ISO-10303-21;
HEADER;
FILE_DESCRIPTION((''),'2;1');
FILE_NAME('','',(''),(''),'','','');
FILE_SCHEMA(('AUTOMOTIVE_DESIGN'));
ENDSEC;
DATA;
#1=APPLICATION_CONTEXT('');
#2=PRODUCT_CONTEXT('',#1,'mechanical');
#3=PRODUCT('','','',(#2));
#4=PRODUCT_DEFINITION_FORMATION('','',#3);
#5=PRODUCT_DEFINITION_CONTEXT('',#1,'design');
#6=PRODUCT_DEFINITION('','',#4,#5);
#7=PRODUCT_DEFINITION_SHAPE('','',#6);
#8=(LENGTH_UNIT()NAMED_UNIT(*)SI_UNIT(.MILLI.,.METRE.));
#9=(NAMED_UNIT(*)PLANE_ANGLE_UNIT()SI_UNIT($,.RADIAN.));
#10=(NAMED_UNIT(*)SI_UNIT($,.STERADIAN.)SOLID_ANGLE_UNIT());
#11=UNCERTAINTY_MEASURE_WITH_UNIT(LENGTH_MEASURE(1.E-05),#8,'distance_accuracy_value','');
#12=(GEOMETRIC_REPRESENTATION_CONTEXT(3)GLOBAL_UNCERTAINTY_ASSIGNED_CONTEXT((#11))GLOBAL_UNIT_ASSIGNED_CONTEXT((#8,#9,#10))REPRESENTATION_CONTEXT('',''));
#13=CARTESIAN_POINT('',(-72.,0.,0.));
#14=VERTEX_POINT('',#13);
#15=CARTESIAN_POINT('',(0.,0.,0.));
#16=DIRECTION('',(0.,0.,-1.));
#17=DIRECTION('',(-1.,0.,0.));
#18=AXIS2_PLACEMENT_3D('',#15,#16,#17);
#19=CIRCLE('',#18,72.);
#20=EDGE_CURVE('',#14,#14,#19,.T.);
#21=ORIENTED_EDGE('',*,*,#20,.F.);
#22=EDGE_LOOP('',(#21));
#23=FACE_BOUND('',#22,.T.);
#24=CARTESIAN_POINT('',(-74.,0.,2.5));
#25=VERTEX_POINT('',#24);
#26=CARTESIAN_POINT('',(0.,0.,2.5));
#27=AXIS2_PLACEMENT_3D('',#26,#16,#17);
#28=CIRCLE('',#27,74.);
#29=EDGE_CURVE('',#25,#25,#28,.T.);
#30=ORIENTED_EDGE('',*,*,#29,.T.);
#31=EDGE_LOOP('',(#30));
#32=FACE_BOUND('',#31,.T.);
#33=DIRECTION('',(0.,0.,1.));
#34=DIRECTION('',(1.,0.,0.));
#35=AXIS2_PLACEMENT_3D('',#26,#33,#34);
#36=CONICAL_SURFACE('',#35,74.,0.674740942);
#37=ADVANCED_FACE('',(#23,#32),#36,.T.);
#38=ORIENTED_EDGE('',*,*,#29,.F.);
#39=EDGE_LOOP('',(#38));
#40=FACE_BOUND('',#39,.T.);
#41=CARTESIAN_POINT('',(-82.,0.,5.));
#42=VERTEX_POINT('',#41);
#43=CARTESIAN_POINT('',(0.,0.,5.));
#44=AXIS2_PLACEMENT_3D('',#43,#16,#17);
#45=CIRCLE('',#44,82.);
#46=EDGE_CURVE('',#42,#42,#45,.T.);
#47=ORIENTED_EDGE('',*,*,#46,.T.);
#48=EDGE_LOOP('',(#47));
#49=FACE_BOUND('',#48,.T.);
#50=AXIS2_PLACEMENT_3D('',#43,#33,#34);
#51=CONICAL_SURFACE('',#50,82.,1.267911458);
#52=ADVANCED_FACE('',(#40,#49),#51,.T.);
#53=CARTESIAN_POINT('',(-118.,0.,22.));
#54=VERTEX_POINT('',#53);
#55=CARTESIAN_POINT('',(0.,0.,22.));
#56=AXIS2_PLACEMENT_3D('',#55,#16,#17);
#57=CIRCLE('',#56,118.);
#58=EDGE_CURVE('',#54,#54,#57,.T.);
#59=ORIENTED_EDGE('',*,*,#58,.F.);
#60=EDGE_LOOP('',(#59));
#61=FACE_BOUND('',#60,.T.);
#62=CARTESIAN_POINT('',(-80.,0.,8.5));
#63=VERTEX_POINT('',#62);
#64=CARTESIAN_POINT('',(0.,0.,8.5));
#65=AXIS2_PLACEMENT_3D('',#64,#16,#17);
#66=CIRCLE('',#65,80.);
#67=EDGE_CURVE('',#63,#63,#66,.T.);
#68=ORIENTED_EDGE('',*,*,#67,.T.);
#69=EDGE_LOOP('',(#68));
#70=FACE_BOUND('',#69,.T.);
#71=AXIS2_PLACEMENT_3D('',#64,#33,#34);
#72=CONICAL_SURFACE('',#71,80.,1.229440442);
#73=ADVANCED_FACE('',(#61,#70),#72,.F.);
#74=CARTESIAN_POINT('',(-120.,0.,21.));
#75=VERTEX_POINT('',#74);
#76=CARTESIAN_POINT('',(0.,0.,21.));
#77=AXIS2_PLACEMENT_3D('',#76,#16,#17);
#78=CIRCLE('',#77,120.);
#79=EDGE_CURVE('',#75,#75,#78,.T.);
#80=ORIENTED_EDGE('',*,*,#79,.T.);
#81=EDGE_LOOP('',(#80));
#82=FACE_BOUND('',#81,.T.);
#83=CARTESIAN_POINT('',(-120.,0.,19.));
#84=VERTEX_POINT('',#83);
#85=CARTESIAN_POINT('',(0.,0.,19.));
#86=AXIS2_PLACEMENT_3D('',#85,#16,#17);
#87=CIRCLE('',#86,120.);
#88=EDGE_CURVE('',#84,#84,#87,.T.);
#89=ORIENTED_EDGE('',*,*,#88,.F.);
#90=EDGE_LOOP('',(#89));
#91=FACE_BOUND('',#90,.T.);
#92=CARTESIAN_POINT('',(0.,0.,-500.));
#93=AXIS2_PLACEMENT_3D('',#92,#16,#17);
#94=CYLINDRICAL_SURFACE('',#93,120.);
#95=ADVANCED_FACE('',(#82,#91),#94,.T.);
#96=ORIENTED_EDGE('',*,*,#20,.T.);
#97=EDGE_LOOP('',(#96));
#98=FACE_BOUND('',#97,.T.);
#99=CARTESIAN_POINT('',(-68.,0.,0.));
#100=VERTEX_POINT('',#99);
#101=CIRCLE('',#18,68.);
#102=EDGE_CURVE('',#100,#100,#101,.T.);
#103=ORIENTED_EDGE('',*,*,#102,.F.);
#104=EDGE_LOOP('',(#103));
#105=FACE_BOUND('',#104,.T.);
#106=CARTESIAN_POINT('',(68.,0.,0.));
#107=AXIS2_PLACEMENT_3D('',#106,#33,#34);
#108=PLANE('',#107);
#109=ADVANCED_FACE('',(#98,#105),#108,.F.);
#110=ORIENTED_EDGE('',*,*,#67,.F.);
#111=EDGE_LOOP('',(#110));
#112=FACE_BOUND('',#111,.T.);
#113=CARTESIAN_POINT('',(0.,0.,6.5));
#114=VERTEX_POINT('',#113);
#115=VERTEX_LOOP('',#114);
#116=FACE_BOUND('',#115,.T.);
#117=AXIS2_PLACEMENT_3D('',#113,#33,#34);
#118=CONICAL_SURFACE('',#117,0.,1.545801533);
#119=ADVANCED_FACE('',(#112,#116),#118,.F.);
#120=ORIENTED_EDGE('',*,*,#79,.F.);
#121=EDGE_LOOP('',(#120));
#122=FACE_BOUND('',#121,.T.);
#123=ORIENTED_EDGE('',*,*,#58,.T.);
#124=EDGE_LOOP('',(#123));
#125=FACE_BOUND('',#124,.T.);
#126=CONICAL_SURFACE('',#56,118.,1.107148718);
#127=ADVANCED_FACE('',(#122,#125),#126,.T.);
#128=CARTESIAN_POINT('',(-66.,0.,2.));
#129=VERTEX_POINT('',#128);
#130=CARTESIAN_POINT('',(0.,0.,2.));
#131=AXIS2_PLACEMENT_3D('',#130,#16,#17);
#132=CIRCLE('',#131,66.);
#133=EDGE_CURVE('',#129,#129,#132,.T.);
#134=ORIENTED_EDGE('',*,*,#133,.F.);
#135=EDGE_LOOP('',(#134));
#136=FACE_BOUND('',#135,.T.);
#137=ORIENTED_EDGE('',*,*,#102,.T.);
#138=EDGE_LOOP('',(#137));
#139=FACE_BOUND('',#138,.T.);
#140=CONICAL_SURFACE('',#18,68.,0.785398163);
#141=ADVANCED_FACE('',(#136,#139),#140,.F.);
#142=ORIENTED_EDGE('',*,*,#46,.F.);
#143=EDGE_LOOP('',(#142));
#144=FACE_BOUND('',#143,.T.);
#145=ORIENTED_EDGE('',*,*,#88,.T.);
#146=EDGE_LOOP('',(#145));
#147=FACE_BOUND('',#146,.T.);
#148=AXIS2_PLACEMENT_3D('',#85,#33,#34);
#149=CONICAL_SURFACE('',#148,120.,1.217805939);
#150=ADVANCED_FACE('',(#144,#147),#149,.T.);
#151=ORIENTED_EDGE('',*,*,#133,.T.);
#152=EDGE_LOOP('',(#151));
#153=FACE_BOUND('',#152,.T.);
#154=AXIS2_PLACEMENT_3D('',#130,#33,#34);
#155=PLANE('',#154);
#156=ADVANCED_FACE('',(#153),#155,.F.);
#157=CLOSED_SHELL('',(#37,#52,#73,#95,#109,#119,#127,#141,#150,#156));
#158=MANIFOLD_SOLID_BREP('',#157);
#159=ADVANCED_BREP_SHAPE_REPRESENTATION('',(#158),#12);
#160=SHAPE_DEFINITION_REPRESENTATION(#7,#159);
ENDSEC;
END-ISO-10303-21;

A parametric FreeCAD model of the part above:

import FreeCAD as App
import Part
import Sketcher
from FreeCAD import Vector
Q = App.Units.Quantity


def add_polygon(sketch, points):
    """Adds a closed chain of lines whose ends are joined by coincident constraints."""
    first, n = sketch.GeometryCount, len(points)
    for a, b in zip(points, points[1:] + points[:1]):
        sketch.addGeometry(Part.LineSegment(App.Vector(*a, 0), App.Vector(*b, 0)), False)
    for i in range(n):
        sketch.addConstraint(Sketcher.Constraint("Coincident", first + i, 2, first + (i + 1) % n, 1))

doc = App.newDocument("Part")
body = doc.addObject("PartDesign::Body", "Body")

sketch1 = body.newObject("Sketcher::SketchObject", "Sketch")
sketch1.AttachmentSupport = (doc.getObject("XZ_Plane"), [""])
sketch1.MapMode = "FlatFace"
add_polygon(sketch1, [(66, 2), (0, 2), (0, 6.5), (80, 8.5), (118, 22), (120, 21), (120, 19), (82, 5), (74, 2.5), (72, 0), (68, 0)])
sketch1.addConstraint([
    Sketcher.Constraint("Horizontal", 0),
    Sketcher.Constraint("Vertical", 1),
    Sketcher.Constraint("Vertical", 5),
    Sketcher.Constraint("Horizontal", 9),
    Sketcher.Constraint("PointOnObject", 0, 2, -2),
    Sketcher.Constraint("PointOnObject", 8, 2, -1),
    Sketcher.Constraint("DistanceX", 0, 2, 0, 1, Q("66 mm")),
    Sketcher.Constraint("DistanceX", 9, 2, 9, 1, Q("4 mm")),
    Sketcher.Constraint("DistanceY", 5, 2, 5, 1, Q("2 mm")),
    Sketcher.Constraint("Angle", 10, Q("135 deg")),
    Sketcher.Constraint("DistanceY", 1, 1, 1, 2, Q("4.5 mm")),
    Sketcher.Constraint("DistanceY", -1, 1, 0, 2, Q("2 mm")),
    Sketcher.Constraint("DistanceX", -1, 1, 2, 2, Q("80 mm")),
    Sketcher.Constraint("DistanceX", -1, 1, 3, 2, Q("118 mm")),
    Sketcher.Constraint("DistanceY", -1, 1, 3, 2, Q("22 mm")),
    Sketcher.Constraint("DistanceX", -1, 1, 4, 2, Q("120 mm")),
    Sketcher.Constraint("DistanceY", -1, 1, 4, 2, Q("21 mm")),
    Sketcher.Constraint("DistanceX", -1, 1, 6, 2, Q("82 mm")),
    Sketcher.Constraint("DistanceY", -1, 1, 6, 2, Q("5 mm")),
    Sketcher.Constraint("DistanceX", -1, 1, 7, 2, Q("74 mm")),
    Sketcher.Constraint("DistanceY", 1, 2, 2, 2, Q("2 mm")),
    Sketcher.Constraint("DistanceY", 7, 2, 2, 2, Q("6 mm")),
])
revolution = body.newObject("PartDesign::Revolution", "Revolution")
revolution.Profile = sketch1
revolution.ReferenceAxis = (sketch1, ["V_Axis"])
revolution.Angle = 360

doc.recompute()
